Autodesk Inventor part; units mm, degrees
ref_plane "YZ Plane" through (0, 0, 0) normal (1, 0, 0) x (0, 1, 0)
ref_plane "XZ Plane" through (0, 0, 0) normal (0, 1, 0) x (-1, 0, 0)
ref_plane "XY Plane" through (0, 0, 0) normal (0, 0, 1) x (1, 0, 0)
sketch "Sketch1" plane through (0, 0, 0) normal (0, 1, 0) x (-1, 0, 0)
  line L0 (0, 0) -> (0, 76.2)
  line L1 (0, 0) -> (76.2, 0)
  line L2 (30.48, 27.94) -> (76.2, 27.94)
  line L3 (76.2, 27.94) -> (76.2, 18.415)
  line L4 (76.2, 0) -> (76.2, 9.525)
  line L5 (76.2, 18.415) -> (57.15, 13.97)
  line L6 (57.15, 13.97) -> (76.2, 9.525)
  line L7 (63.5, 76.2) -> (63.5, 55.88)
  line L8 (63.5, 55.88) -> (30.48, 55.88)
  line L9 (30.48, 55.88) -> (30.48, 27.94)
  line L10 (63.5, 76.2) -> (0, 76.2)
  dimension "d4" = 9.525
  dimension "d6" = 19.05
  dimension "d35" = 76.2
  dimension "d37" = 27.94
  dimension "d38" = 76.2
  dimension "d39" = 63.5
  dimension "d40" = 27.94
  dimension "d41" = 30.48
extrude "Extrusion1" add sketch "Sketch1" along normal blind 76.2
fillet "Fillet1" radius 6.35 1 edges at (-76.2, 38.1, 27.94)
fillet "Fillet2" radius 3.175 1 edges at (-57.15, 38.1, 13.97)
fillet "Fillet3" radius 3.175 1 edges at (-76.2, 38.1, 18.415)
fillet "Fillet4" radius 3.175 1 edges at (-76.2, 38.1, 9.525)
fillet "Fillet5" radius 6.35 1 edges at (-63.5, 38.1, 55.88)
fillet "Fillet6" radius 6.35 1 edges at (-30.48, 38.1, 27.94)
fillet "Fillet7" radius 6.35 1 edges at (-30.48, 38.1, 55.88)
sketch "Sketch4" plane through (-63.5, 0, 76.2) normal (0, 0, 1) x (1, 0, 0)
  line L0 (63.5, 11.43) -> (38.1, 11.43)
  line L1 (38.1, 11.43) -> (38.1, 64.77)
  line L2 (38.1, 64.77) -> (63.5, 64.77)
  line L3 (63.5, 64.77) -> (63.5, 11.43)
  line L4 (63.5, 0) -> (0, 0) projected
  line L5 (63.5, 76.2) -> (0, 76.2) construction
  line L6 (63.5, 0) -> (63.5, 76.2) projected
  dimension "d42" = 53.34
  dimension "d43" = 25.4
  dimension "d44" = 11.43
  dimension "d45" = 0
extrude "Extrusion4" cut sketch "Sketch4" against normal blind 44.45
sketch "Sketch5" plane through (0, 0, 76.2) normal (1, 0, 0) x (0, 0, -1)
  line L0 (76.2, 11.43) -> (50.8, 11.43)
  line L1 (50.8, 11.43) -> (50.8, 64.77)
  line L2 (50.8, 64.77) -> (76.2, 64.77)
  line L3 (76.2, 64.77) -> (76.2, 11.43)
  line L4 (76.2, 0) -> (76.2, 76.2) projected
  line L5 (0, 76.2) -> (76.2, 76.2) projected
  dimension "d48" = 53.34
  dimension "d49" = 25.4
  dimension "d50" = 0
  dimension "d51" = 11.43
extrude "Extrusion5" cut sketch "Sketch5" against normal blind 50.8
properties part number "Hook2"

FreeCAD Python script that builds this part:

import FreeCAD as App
import Part
import Sketcher

V = App.Vector
Q = App.Units.Quantity


def edges_at(feature, points):
    """Names of the edges that pass closest to the given points."""
    edges = feature.Shape.Edges
    near = lambda p: min(range(len(edges)), key=lambda i: edges[i].distToShape(Part.Vertex(*p))[0])
    return sorted({f"Edge{near(p) + 1}" for p in points})

doc = App.newDocument("Part")
body = doc.addObject("PartDesign::Body", "Body")

# Sketch on XZ plane
sketch1 = body.newObject("Sketcher::SketchObject", "Sketch")
sketch1.AttachmentSupport = (doc.getObject("XZ_Plane"), [""])
sketch1.MapMode = "FlatFace"
sketch1.addGeometry([
    Part.LineSegment(V(0, 76.2, 0), V(0, 0, 0)),  # 0
    Part.LineSegment(V(0, 0, 0), V(-76.2, 0, 0)),  # 1
    Part.LineSegment(V(-76.2, 0, 0), V(-76.2, 9.525, 0)),  # 2
    Part.LineSegment(V(-76.2, 9.525, 0), V(-57.15, 13.97, 0)),  # 3
    Part.LineSegment(V(-57.15, 13.97, 0), V(-76.2, 18.415, 0)),  # 4
    Part.LineSegment(V(-76.2, 18.415, 0), V(-76.2, 27.94, 0)),  # 5
    Part.LineSegment(V(-76.2, 27.94, 0), V(-30.48, 27.94, 0)),  # 6
    Part.LineSegment(V(-30.48, 27.94, 0), V(-30.48, 55.88, 0)),  # 7
    Part.LineSegment(V(-30.48, 55.88, 0), V(-63.5, 55.88, 0)),  # 8
    Part.LineSegment(V(-63.5, 55.88, 0), V(-63.5, 76.2, 0)),  # 9
    Part.LineSegment(V(-63.5, 76.2, 0), V(0, 76.2, 0)),  # 10
], False)
sketch1.addConstraint([
    Sketcher.Constraint("Coincident", 0, 2, 1, 1),
    Sketcher.Constraint("Coincident", 1, 2, 2, 1),
    Sketcher.Constraint("Coincident", 2, 2, 3, 1),
    Sketcher.Constraint("Coincident", 3, 2, 4, 1),
    Sketcher.Constraint("Coincident", 4, 2, 5, 1),
    Sketcher.Constraint("Coincident", 5, 2, 6, 1),
    Sketcher.Constraint("Coincident", 6, 2, 7, 1),
    Sketcher.Constraint("Coincident", 7, 2, 8, 1),
    Sketcher.Constraint("Coincident", 8, 2, 9, 1),
    Sketcher.Constraint("Coincident", 9, 2, 10, 1),
    Sketcher.Constraint("Coincident", 10, 2, 0, 1),
    Sketcher.Constraint("Vertical", 0),
    Sketcher.Constraint("Horizontal", 1),
    Sketcher.Constraint("Vertical", 2),
    Sketcher.Constraint("Vertical", 5),
    Sketcher.Constraint("Horizontal", 6),
    Sketcher.Constraint("Vertical", 7),
    Sketcher.Constraint("Horizontal", 8),
    Sketcher.Constraint("Vertical", 9),
    Sketcher.Constraint("Horizontal", 10),
    Sketcher.Constraint("Coincident", 0, 2, -1, 1),
    Sketcher.Constraint("Vertical", 2, 2, 4, 2),
    Sketcher.Constraint("Equal", 1, 0),
    Sketcher.Constraint("Equal", 2, 5),
    Sketcher.Constraint("Equal", 3, 4),
    Sketcher.Constraint("DistanceX", 1, 2, 1, 1, Q("3 in")),
    Sketcher.Constraint("DistanceX", 10, 1, 10, 2, Q("2.5 in")),
    Sketcher.Constraint("DistanceY", 7, 1, 7, 2, Q("1.1 in")),
    Sketcher.Constraint("DistanceY", -1, 1, 5, 2, Q("1.1 in")),
    Sketcher.Constraint("DistanceX", 6, 2, -1, 1, Q("1.2 in")),
    Sketcher.Constraint("DistanceY", 2, 1, 2, 2, Q("0.375 in")),
    Sketcher.Constraint("DistanceX", 2, 2, 3, 2, Q("0.75 in")),
])
pad1 = body.newObject("PartDesign::Pad", "Pad")
pad1.Profile = sketch1
pad1.Length = Q("3 in")
pad1.Reversed = True
doc.recompute()

fillet = body.newObject("PartDesign::Fillet", "Fillet")
fillet.Base = (pad1, edges_at(pad1, [(-76.2, 38.1, 27.94)]))
fillet.Radius = Q("0.25 in")
doc.recompute()

fillet2 = body.newObject("PartDesign::Fillet", "Fillet001")
fillet2.Base = (fillet, edges_at(fillet, [(-57.15, 38.1, 13.97)]))
fillet2.Radius = Q("0.125 in")
doc.recompute()

fillet3 = body.newObject("PartDesign::Fillet", "Fillet002")
fillet3.Base = (fillet2, edges_at(fillet2, [(-76.2, 38.1, 18.415)]))
fillet3.Radius = Q("0.125 in")
doc.recompute()

fillet4 = body.newObject("PartDesign::Fillet", "Fillet003")
fillet4.Base = (fillet3, edges_at(fillet3, [(-76.2, 38.1, 9.525)]))
fillet4.Radius = Q("0.125 in")
doc.recompute()

fillet5 = body.newObject("PartDesign::Fillet", "Fillet004")
fillet5.Base = (fillet4, edges_at(fillet4, [(-63.5, 38.1, 55.88)]))
fillet5.Radius = Q("0.25 in")
doc.recompute()

fillet6 = body.newObject("PartDesign::Fillet", "Fillet005")
fillet6.Base = (fillet5, edges_at(fillet5, [(-30.48, 38.1, 27.94)]))
fillet6.Radius = Q("0.25 in")
doc.recompute()

fillet7 = body.newObject("PartDesign::Fillet", "Fillet006")
fillet7.Base = (fillet6, edges_at(fillet6, [(-30.48, 38.1, 55.88)]))
fillet7.Radius = Q("0.25 in")

# Sketch on XY plane
sketch2 = body.newObject("Sketcher::SketchObject", "Sketch001")
sketch2.AttachmentSupport = (doc.getObject("XY_Plane"), [""])
sketch2.MapMode = "FlatFace"
sketch2.AttachmentOffset = App.Placement(V(0, 0, 3 * 25.4), App.Rotation())
sketch2.addGeometry([
    Part.LineSegment(V(-25.4, 11.43, 0), V(0, 11.43, 0)),
    Part.LineSegment(V(0, 11.43, 0), V(0, 64.77, 0)),
    Part.LineSegment(V(0, 64.77, 0), V(-25.4, 64.77, 0)),
    Part.LineSegment(V(-25.4, 64.77, 0), V(-25.4, 11.43, 0)),
], False)
sketch2.addConstraint([
    Sketcher.Constraint("Coincident", 0, 2, 1, 1),
    Sketcher.Constraint("Coincident", 1, 2, 2, 1),
    Sketcher.Constraint("Coincident", 2, 2, 3, 1),
    Sketcher.Constraint("Coincident", 3, 2, 0, 1),
    Sketcher.Constraint("Horizontal", 0),
    Sketcher.Constraint("Vertical", 1),
    Sketcher.Constraint("Horizontal", 2),
    Sketcher.Constraint("Vertical", 3),
    Sketcher.Constraint("PointOnObject", 0, 2, -2),
    Sketcher.Constraint("DistanceX", 0, 1, 0, 2, Q("1 in")),
    Sketcher.Constraint("DistanceY", 1, 1, 1, 2, Q("2.1 in")),
    Sketcher.Constraint("DistanceY", -1, 1, 0, 2, Q("0.45 in")),
])
pocket1 = body.newObject("PartDesign::Pocket", "Pocket")
pocket1.Profile = sketch2
pocket1.Length = Q("1.75 in")

# Sketch on YZ plane
sketch3 = body.newObject("Sketcher::SketchObject", "Sketch002")
sketch3.AttachmentSupport = (doc.getObject("YZ_Plane"), [""])
sketch3.MapMode = "FlatFace"
sketch3.addGeometry([
    Part.LineSegment(V(11.43, 25.4, 0), V(11.43, 0, 0)),
    Part.LineSegment(V(11.43, 0, 0), V(64.77, 0, 0)),
    Part.LineSegment(V(64.77, 0, 0), V(64.77, 25.4, 0)),
    Part.LineSegment(V(64.77, 25.4, 0), V(11.43, 25.4, 0)),
], False)
sketch3.addConstraint([
    Sketcher.Constraint("Coincident", 0, 2, 1, 1),
    Sketcher.Constraint("Coincident", 1, 2, 2, 1),
    Sketcher.Constraint("Coincident", 2, 2, 3, 1),
    Sketcher.Constraint("Coincident", 3, 2, 0, 1),
    Sketcher.Constraint("Vertical", 0),
    Sketcher.Constraint("Horizontal", 1),
    Sketcher.Constraint("Vertical", 2),
    Sketcher.Constraint("Horizontal", 3),
    Sketcher.Constraint("PointOnObject", 0, 2, -1),
    Sketcher.Constraint("DistanceY", 0, 2, 0, 1, Q("1 in")),
    Sketcher.Constraint("DistanceX", 1, 1, 1, 2, Q("2.1 in")),
    Sketcher.Constraint("DistanceX", -1, 1, 0, 2, Q("0.45 in")),
])
pocket2 = body.newObject("PartDesign::Pocket", "Pocket001")
pocket2.Profile = sketch3
pocket2.Length = Q("2 in")

doc.recompute()
